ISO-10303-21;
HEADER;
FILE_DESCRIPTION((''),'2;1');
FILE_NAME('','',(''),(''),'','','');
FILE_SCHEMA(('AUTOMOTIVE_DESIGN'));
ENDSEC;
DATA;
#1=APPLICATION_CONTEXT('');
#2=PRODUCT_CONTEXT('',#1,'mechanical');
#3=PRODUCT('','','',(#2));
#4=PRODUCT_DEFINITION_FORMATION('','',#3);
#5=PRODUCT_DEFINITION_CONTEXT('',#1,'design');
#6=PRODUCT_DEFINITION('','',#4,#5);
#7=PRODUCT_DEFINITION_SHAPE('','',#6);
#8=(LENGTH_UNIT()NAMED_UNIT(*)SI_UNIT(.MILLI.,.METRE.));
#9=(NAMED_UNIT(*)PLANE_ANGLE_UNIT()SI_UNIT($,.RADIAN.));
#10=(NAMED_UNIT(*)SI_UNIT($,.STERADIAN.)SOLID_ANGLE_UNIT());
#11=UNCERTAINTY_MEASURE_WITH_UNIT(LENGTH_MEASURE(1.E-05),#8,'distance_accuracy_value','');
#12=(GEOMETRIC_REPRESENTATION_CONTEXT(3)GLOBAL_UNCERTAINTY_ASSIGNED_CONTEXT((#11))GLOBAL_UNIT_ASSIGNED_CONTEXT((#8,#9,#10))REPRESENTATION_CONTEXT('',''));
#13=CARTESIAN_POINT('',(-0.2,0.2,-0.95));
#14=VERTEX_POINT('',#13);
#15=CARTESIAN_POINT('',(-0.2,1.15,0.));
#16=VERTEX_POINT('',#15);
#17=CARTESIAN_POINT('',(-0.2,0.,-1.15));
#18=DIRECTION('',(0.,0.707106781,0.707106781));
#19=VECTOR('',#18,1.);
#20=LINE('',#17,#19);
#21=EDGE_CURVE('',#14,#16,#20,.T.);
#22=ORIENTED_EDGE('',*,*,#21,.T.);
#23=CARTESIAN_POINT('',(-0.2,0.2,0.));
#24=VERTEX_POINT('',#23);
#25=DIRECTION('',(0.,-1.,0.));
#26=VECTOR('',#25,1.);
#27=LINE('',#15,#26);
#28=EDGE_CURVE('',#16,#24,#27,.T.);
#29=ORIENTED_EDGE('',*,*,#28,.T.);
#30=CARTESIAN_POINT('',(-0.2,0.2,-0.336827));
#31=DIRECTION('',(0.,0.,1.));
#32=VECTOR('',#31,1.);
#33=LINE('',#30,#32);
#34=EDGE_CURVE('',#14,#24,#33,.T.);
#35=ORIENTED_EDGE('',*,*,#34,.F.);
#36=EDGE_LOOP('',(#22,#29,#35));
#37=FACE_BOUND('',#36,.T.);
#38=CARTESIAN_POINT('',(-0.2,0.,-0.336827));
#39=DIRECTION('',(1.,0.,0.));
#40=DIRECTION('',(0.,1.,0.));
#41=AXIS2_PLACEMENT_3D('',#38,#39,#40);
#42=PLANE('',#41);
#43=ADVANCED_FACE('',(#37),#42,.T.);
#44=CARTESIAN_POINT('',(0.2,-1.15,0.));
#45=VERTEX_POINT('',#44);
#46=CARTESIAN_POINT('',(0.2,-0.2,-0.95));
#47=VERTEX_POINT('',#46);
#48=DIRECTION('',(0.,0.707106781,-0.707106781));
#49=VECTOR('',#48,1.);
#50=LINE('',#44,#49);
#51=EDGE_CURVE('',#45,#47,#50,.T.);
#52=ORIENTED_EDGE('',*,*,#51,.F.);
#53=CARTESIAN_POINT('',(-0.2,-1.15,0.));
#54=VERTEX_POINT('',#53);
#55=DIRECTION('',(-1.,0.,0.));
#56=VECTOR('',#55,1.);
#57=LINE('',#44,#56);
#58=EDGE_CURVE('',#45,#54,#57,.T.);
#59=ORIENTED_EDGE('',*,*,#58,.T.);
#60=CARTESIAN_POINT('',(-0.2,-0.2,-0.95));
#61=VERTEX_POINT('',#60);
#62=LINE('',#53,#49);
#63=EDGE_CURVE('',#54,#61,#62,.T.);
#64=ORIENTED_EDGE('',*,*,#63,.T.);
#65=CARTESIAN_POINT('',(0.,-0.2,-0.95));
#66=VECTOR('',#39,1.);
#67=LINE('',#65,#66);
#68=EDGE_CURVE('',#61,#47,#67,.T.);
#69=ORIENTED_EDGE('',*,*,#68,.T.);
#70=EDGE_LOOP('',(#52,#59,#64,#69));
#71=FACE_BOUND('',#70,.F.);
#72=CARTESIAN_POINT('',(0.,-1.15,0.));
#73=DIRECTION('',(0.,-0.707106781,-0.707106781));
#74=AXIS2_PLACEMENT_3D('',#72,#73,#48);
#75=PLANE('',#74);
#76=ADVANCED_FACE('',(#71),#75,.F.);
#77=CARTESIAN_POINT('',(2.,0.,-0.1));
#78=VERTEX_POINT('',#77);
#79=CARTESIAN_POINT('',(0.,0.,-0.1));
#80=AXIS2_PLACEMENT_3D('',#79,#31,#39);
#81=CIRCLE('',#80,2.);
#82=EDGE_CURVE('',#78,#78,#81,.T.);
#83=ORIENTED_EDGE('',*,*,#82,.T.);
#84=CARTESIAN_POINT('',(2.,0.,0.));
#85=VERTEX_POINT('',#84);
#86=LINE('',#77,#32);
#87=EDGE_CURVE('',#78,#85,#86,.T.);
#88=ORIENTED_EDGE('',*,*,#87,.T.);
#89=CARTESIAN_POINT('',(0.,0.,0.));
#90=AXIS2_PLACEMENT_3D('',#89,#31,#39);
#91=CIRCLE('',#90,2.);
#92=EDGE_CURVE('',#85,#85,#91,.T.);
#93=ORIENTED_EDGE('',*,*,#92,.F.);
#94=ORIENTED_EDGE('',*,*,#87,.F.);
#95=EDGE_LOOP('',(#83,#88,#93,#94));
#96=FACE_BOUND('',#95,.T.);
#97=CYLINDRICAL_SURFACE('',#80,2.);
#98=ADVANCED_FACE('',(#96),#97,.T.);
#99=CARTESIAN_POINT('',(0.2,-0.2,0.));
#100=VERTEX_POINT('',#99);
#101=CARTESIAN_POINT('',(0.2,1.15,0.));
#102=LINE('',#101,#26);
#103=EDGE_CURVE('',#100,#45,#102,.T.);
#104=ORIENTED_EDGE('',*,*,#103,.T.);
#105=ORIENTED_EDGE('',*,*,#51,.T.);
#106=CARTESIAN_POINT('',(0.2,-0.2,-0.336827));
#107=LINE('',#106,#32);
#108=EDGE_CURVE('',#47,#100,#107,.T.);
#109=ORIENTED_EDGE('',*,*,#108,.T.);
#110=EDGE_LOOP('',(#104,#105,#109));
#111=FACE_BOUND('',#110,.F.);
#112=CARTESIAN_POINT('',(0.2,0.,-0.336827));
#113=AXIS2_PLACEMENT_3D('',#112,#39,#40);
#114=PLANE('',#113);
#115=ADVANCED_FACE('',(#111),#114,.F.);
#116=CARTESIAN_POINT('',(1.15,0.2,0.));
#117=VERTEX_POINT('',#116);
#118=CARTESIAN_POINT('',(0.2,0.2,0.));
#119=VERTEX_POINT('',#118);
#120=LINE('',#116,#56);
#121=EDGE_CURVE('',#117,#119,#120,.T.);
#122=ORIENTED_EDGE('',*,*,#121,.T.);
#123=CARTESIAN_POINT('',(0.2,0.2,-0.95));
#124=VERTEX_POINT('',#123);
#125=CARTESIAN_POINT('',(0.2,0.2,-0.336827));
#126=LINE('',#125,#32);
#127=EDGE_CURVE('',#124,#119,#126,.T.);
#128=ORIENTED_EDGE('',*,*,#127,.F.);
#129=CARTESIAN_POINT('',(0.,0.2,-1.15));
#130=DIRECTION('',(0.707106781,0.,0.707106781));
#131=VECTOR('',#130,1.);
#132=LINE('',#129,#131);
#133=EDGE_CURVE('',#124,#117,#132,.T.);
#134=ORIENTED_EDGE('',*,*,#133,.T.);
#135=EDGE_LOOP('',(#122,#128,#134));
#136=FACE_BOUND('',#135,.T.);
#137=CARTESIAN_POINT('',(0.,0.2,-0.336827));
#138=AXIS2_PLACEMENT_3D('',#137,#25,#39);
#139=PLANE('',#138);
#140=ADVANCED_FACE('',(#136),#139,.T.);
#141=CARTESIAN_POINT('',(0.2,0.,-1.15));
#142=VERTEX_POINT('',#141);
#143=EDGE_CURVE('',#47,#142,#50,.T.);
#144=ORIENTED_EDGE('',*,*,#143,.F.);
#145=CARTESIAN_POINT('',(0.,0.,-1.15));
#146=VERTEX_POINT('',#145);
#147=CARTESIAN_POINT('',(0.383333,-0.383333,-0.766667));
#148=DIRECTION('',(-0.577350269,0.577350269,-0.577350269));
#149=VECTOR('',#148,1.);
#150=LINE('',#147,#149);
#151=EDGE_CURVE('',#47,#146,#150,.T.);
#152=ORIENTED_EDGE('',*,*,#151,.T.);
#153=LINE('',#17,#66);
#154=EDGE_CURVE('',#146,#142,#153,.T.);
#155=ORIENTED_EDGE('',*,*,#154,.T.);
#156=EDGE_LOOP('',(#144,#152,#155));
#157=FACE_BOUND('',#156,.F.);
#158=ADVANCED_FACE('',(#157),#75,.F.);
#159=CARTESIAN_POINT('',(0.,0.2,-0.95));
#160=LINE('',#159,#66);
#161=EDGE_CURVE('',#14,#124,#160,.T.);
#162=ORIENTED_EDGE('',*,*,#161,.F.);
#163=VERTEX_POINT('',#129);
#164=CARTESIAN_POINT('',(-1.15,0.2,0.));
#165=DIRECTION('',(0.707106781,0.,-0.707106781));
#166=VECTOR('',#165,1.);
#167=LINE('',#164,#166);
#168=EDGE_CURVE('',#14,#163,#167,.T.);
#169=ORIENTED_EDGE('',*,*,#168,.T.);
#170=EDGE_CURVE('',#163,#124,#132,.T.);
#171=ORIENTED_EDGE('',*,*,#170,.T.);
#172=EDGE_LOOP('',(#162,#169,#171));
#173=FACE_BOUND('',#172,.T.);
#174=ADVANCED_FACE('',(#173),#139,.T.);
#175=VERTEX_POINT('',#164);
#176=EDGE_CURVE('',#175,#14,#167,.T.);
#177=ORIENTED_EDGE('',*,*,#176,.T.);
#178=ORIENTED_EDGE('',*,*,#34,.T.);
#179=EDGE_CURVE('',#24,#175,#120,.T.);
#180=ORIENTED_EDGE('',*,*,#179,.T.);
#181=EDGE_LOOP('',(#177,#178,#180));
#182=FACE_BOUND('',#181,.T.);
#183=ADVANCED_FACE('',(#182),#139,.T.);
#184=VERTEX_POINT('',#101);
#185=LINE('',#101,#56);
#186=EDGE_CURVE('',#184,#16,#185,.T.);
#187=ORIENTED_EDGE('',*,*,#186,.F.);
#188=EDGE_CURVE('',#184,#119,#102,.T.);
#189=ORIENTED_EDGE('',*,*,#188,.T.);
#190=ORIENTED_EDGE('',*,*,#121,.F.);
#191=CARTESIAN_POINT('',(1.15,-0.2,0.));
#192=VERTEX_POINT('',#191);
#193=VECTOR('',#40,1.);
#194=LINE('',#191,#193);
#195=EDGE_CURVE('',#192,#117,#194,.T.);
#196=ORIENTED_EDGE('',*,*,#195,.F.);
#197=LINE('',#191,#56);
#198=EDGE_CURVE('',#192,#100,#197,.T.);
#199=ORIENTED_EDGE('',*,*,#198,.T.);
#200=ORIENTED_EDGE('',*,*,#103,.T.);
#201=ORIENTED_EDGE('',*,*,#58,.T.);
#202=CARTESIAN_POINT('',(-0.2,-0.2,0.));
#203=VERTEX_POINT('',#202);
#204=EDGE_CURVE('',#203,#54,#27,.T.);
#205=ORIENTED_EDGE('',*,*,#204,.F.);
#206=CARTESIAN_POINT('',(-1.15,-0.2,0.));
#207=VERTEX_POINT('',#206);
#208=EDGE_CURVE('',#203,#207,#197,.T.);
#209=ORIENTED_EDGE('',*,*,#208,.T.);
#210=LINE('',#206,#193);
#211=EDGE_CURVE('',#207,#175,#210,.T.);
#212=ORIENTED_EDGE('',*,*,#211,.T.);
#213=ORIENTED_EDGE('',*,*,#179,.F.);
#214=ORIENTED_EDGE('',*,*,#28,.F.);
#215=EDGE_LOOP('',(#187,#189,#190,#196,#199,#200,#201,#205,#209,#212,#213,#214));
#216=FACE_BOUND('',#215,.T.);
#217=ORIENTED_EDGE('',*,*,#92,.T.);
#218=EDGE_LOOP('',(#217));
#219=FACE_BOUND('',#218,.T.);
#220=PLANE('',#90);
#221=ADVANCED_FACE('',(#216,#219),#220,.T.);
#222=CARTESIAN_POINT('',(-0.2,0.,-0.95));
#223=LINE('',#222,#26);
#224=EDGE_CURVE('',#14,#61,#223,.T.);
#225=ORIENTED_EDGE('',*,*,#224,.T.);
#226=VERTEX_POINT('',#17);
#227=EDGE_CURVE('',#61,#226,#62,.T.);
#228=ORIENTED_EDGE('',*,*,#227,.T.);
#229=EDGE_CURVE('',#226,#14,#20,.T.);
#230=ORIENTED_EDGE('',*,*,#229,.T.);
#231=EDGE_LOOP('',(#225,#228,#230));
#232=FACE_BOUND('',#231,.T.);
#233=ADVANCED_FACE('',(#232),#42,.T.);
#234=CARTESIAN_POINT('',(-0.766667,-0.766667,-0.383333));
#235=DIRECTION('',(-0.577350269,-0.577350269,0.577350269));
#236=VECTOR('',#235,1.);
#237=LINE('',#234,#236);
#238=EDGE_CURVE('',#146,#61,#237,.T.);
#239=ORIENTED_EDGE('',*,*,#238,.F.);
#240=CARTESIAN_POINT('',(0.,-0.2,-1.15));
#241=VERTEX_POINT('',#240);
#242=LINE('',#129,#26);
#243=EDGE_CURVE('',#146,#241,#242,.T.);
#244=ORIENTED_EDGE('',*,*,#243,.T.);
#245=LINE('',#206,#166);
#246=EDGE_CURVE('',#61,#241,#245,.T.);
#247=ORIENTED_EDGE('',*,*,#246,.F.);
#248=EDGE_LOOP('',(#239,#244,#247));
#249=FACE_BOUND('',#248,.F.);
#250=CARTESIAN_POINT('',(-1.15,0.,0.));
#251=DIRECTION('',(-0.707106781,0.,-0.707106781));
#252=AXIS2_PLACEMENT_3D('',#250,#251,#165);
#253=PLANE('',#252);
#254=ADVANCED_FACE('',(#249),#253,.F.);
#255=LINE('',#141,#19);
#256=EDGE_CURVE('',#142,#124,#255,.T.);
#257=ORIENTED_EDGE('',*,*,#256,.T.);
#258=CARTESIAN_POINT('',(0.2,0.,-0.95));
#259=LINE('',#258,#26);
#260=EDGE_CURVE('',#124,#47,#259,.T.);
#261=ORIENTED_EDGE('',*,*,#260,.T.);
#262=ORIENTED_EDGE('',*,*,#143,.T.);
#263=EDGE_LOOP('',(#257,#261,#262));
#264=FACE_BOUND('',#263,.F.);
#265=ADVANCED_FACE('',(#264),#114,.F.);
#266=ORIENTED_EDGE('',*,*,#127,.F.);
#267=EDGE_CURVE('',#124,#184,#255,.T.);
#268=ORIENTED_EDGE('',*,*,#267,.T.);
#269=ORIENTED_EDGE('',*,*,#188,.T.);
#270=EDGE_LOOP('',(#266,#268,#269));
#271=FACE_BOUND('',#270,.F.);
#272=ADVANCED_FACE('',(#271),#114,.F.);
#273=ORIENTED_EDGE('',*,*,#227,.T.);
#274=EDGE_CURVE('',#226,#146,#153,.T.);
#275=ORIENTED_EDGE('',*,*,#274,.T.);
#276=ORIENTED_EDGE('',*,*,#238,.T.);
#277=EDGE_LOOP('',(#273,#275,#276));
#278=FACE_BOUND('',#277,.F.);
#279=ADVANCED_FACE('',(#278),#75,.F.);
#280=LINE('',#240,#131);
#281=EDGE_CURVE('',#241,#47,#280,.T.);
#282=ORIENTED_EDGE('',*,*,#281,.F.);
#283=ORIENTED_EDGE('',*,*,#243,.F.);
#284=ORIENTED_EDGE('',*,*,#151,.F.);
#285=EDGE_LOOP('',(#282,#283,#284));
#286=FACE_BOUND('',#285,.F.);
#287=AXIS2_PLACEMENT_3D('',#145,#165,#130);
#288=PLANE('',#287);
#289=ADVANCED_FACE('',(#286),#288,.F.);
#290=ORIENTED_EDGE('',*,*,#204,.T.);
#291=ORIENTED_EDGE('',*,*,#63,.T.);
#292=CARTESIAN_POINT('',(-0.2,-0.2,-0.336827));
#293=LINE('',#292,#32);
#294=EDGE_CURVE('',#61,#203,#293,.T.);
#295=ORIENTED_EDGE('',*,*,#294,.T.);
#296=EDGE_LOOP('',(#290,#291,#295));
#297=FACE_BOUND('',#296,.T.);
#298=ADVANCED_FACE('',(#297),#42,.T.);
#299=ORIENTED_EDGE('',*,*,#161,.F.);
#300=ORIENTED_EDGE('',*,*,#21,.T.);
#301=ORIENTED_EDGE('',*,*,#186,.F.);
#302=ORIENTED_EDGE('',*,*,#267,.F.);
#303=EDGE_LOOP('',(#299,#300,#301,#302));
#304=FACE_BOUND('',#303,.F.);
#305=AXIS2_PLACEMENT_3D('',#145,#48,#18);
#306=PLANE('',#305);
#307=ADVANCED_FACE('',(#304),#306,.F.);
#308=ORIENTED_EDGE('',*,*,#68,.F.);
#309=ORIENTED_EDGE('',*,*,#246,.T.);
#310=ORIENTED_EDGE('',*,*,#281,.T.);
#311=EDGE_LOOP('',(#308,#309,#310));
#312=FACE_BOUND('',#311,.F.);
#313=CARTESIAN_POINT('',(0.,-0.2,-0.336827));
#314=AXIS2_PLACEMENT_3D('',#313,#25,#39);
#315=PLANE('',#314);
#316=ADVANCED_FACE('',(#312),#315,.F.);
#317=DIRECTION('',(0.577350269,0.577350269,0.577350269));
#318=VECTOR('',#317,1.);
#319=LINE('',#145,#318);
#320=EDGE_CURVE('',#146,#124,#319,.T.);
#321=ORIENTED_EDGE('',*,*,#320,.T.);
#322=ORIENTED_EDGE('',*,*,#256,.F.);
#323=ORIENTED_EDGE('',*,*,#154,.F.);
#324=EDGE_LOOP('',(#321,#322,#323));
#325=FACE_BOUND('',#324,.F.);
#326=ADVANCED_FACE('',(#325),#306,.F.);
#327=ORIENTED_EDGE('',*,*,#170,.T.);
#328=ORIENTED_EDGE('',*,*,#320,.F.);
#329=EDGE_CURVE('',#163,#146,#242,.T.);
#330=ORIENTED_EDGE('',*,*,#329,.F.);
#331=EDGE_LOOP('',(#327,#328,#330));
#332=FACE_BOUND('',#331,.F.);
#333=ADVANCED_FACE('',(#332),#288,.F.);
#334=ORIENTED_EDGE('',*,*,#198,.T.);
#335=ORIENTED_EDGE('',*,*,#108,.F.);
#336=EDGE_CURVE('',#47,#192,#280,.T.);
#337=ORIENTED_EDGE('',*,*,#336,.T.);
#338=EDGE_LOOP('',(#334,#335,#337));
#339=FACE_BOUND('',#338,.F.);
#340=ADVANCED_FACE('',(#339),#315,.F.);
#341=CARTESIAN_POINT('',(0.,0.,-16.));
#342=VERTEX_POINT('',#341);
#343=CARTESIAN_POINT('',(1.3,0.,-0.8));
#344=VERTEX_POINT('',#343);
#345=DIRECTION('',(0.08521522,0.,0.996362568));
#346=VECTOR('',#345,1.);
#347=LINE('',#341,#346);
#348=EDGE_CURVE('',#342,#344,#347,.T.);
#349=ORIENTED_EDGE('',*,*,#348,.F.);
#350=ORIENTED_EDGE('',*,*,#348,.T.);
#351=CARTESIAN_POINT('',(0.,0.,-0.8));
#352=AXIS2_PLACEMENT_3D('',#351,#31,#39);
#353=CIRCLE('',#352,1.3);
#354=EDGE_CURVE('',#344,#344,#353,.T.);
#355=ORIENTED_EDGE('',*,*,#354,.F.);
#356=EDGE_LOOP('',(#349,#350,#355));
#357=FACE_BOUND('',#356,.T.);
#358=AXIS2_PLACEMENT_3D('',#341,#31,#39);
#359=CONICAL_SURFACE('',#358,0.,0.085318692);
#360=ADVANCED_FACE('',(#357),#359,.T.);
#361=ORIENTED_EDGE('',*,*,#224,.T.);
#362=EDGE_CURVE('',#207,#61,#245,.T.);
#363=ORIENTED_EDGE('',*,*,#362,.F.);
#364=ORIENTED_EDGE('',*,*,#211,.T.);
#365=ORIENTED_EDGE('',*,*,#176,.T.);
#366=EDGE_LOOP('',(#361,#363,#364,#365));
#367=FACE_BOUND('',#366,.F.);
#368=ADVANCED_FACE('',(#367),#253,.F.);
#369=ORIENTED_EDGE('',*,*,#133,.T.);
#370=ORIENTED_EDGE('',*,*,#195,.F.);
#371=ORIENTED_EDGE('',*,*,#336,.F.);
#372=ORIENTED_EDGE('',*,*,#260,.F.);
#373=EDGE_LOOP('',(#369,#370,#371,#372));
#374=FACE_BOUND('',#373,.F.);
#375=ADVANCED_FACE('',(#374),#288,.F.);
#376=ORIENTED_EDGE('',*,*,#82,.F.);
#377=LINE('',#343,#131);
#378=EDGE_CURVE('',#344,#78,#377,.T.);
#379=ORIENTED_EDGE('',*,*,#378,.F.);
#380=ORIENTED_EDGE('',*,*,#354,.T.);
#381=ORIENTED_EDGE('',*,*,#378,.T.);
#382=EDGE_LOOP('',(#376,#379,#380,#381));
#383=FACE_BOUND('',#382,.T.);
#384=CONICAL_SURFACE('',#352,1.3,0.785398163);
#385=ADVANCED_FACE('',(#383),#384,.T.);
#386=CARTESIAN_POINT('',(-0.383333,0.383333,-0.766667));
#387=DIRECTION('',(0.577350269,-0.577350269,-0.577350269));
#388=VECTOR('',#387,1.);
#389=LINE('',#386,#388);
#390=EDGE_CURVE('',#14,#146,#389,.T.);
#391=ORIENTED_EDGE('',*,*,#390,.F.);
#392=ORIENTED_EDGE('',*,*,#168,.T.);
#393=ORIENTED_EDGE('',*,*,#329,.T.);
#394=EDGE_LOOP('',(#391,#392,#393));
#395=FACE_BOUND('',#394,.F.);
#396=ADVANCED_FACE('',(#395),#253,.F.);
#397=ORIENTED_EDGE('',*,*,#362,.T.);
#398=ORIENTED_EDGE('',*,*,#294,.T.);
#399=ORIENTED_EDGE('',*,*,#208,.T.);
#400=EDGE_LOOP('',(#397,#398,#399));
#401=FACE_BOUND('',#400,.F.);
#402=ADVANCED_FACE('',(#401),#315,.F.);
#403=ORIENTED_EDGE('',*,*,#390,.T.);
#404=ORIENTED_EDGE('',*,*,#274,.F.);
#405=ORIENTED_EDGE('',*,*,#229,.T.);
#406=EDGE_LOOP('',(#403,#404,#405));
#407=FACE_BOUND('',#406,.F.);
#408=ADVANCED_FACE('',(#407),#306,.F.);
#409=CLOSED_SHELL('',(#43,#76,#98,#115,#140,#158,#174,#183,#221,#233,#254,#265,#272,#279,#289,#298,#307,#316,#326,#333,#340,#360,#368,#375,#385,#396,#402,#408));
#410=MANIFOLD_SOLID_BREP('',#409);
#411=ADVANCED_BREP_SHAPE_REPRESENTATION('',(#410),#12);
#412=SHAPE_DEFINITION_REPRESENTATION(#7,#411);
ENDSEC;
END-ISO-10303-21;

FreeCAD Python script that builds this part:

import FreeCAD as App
import Part
import Sketcher
from FreeCAD import Vector
Q = App.Units.Quantity


def add_polygon(sketch, points):
    """Adds a closed chain of lines whose ends are joined by coincident constraints."""
    first, n = sketch.GeometryCount, len(points)
    for a, b in zip(points, points[1:] + points[:1]):
        sketch.addGeometry(Part.LineSegment(App.Vector(*a, 0), App.Vector(*b, 0)), False)
    for i in range(n):
        sketch.addConstraint(Sketcher.Constraint("Coincident", first + i, 2, first + (i + 1) % n, 1))

doc = App.newDocument("Part")
body = doc.addObject("PartDesign::Body", "Body")

# Sketch on XZ plane
sketch1 = body.newObject("Sketcher::SketchObject", "Sketch")
sketch1.AttachmentSupport = (doc.getObject("XZ_Plane"), [""])
sketch1.MapMode = "FlatFace"
add_polygon(sketch1, [(0, 0), (0, -16), (1.3, -0.8), (2, -0.1), (2, 0)])  # lines 0-4
sketch1.addConstraint(Sketcher.Constraint("Vertical", 0))
sketch1.addConstraint(Sketcher.Constraint("Vertical", 3))
sketch1.addConstraint(Sketcher.Constraint("Horizontal", 4))
sketch1.addConstraint(Sketcher.Constraint("Coincident", 4, 2, -1, 1))
sketch1.addConstraint(Sketcher.Constraint("DistanceX", 4, 2, 4, 1, Q("2 mm")))
sketch1.addConstraint(Sketcher.Constraint("DistanceY", 0, 2, 0, 1, Q("16 mm")))
sketch1.addConstraint(Sketcher.Constraint("Angle", 2, Q("45 deg")))
sketch1.addConstraint(Sketcher.Constraint("DistanceY", 3, 1, 3, 2, Q("0.1 mm")))
sketch1.addConstraint(Sketcher.Constraint("DistanceX", -1, 1, 1, 2, Q("1.3 mm")))
revolution = body.newObject("PartDesign::Revolution", "Revolution")
revolution.Profile = sketch1
revolution.ReferenceAxis = (sketch1, ["V_Axis"])
revolution.Angle = 360

# Sketch on XZ plane
sketch2 = body.newObject("Sketcher::SketchObject", "Sketch001")
sketch2.AttachmentSupport = (doc.getObject("XZ_Plane"), [""])
sketch2.MapMode = "FlatFace"
add_polygon(sketch2, [(-1.1, 0), (0, -1.1), (1.1, 0)])  # lines 0-2
sketch2.addConstraint(Sketcher.Constraint("Horizontal", 2))
sketch2.addConstraint(Sketcher.Constraint("Symmetric", 1, 2, 2, 2, -1, 1))
sketch2.addConstraint(Sketcher.Constraint("PointOnObject", 0, 2, -2))
sketch2.addConstraint(Sketcher.Constraint("Perpendicular", 0, 1))
sketch2.addConstraint(Sketcher.Constraint("DistanceX", 2, 2, 2, 1, Q("2.3 mm")))
pocket1 = body.newObject("PartDesign::Pocket", "Pocket")
pocket1.Profile = sketch2
pocket1.Length = 0.4
pocket1.Midplane = True
doc.recompute()

polarpattern = body.newObject("PartDesign::PolarPattern", "PolarPattern")
polarpattern.Originals = [pocket1]
polarpattern.Axis = (doc.getObject("Z_Axis"), [""])
polarpattern.Angle = 90
polarpattern.Occurrences = 2
body.Tip = polarpattern

doc.recompute()
